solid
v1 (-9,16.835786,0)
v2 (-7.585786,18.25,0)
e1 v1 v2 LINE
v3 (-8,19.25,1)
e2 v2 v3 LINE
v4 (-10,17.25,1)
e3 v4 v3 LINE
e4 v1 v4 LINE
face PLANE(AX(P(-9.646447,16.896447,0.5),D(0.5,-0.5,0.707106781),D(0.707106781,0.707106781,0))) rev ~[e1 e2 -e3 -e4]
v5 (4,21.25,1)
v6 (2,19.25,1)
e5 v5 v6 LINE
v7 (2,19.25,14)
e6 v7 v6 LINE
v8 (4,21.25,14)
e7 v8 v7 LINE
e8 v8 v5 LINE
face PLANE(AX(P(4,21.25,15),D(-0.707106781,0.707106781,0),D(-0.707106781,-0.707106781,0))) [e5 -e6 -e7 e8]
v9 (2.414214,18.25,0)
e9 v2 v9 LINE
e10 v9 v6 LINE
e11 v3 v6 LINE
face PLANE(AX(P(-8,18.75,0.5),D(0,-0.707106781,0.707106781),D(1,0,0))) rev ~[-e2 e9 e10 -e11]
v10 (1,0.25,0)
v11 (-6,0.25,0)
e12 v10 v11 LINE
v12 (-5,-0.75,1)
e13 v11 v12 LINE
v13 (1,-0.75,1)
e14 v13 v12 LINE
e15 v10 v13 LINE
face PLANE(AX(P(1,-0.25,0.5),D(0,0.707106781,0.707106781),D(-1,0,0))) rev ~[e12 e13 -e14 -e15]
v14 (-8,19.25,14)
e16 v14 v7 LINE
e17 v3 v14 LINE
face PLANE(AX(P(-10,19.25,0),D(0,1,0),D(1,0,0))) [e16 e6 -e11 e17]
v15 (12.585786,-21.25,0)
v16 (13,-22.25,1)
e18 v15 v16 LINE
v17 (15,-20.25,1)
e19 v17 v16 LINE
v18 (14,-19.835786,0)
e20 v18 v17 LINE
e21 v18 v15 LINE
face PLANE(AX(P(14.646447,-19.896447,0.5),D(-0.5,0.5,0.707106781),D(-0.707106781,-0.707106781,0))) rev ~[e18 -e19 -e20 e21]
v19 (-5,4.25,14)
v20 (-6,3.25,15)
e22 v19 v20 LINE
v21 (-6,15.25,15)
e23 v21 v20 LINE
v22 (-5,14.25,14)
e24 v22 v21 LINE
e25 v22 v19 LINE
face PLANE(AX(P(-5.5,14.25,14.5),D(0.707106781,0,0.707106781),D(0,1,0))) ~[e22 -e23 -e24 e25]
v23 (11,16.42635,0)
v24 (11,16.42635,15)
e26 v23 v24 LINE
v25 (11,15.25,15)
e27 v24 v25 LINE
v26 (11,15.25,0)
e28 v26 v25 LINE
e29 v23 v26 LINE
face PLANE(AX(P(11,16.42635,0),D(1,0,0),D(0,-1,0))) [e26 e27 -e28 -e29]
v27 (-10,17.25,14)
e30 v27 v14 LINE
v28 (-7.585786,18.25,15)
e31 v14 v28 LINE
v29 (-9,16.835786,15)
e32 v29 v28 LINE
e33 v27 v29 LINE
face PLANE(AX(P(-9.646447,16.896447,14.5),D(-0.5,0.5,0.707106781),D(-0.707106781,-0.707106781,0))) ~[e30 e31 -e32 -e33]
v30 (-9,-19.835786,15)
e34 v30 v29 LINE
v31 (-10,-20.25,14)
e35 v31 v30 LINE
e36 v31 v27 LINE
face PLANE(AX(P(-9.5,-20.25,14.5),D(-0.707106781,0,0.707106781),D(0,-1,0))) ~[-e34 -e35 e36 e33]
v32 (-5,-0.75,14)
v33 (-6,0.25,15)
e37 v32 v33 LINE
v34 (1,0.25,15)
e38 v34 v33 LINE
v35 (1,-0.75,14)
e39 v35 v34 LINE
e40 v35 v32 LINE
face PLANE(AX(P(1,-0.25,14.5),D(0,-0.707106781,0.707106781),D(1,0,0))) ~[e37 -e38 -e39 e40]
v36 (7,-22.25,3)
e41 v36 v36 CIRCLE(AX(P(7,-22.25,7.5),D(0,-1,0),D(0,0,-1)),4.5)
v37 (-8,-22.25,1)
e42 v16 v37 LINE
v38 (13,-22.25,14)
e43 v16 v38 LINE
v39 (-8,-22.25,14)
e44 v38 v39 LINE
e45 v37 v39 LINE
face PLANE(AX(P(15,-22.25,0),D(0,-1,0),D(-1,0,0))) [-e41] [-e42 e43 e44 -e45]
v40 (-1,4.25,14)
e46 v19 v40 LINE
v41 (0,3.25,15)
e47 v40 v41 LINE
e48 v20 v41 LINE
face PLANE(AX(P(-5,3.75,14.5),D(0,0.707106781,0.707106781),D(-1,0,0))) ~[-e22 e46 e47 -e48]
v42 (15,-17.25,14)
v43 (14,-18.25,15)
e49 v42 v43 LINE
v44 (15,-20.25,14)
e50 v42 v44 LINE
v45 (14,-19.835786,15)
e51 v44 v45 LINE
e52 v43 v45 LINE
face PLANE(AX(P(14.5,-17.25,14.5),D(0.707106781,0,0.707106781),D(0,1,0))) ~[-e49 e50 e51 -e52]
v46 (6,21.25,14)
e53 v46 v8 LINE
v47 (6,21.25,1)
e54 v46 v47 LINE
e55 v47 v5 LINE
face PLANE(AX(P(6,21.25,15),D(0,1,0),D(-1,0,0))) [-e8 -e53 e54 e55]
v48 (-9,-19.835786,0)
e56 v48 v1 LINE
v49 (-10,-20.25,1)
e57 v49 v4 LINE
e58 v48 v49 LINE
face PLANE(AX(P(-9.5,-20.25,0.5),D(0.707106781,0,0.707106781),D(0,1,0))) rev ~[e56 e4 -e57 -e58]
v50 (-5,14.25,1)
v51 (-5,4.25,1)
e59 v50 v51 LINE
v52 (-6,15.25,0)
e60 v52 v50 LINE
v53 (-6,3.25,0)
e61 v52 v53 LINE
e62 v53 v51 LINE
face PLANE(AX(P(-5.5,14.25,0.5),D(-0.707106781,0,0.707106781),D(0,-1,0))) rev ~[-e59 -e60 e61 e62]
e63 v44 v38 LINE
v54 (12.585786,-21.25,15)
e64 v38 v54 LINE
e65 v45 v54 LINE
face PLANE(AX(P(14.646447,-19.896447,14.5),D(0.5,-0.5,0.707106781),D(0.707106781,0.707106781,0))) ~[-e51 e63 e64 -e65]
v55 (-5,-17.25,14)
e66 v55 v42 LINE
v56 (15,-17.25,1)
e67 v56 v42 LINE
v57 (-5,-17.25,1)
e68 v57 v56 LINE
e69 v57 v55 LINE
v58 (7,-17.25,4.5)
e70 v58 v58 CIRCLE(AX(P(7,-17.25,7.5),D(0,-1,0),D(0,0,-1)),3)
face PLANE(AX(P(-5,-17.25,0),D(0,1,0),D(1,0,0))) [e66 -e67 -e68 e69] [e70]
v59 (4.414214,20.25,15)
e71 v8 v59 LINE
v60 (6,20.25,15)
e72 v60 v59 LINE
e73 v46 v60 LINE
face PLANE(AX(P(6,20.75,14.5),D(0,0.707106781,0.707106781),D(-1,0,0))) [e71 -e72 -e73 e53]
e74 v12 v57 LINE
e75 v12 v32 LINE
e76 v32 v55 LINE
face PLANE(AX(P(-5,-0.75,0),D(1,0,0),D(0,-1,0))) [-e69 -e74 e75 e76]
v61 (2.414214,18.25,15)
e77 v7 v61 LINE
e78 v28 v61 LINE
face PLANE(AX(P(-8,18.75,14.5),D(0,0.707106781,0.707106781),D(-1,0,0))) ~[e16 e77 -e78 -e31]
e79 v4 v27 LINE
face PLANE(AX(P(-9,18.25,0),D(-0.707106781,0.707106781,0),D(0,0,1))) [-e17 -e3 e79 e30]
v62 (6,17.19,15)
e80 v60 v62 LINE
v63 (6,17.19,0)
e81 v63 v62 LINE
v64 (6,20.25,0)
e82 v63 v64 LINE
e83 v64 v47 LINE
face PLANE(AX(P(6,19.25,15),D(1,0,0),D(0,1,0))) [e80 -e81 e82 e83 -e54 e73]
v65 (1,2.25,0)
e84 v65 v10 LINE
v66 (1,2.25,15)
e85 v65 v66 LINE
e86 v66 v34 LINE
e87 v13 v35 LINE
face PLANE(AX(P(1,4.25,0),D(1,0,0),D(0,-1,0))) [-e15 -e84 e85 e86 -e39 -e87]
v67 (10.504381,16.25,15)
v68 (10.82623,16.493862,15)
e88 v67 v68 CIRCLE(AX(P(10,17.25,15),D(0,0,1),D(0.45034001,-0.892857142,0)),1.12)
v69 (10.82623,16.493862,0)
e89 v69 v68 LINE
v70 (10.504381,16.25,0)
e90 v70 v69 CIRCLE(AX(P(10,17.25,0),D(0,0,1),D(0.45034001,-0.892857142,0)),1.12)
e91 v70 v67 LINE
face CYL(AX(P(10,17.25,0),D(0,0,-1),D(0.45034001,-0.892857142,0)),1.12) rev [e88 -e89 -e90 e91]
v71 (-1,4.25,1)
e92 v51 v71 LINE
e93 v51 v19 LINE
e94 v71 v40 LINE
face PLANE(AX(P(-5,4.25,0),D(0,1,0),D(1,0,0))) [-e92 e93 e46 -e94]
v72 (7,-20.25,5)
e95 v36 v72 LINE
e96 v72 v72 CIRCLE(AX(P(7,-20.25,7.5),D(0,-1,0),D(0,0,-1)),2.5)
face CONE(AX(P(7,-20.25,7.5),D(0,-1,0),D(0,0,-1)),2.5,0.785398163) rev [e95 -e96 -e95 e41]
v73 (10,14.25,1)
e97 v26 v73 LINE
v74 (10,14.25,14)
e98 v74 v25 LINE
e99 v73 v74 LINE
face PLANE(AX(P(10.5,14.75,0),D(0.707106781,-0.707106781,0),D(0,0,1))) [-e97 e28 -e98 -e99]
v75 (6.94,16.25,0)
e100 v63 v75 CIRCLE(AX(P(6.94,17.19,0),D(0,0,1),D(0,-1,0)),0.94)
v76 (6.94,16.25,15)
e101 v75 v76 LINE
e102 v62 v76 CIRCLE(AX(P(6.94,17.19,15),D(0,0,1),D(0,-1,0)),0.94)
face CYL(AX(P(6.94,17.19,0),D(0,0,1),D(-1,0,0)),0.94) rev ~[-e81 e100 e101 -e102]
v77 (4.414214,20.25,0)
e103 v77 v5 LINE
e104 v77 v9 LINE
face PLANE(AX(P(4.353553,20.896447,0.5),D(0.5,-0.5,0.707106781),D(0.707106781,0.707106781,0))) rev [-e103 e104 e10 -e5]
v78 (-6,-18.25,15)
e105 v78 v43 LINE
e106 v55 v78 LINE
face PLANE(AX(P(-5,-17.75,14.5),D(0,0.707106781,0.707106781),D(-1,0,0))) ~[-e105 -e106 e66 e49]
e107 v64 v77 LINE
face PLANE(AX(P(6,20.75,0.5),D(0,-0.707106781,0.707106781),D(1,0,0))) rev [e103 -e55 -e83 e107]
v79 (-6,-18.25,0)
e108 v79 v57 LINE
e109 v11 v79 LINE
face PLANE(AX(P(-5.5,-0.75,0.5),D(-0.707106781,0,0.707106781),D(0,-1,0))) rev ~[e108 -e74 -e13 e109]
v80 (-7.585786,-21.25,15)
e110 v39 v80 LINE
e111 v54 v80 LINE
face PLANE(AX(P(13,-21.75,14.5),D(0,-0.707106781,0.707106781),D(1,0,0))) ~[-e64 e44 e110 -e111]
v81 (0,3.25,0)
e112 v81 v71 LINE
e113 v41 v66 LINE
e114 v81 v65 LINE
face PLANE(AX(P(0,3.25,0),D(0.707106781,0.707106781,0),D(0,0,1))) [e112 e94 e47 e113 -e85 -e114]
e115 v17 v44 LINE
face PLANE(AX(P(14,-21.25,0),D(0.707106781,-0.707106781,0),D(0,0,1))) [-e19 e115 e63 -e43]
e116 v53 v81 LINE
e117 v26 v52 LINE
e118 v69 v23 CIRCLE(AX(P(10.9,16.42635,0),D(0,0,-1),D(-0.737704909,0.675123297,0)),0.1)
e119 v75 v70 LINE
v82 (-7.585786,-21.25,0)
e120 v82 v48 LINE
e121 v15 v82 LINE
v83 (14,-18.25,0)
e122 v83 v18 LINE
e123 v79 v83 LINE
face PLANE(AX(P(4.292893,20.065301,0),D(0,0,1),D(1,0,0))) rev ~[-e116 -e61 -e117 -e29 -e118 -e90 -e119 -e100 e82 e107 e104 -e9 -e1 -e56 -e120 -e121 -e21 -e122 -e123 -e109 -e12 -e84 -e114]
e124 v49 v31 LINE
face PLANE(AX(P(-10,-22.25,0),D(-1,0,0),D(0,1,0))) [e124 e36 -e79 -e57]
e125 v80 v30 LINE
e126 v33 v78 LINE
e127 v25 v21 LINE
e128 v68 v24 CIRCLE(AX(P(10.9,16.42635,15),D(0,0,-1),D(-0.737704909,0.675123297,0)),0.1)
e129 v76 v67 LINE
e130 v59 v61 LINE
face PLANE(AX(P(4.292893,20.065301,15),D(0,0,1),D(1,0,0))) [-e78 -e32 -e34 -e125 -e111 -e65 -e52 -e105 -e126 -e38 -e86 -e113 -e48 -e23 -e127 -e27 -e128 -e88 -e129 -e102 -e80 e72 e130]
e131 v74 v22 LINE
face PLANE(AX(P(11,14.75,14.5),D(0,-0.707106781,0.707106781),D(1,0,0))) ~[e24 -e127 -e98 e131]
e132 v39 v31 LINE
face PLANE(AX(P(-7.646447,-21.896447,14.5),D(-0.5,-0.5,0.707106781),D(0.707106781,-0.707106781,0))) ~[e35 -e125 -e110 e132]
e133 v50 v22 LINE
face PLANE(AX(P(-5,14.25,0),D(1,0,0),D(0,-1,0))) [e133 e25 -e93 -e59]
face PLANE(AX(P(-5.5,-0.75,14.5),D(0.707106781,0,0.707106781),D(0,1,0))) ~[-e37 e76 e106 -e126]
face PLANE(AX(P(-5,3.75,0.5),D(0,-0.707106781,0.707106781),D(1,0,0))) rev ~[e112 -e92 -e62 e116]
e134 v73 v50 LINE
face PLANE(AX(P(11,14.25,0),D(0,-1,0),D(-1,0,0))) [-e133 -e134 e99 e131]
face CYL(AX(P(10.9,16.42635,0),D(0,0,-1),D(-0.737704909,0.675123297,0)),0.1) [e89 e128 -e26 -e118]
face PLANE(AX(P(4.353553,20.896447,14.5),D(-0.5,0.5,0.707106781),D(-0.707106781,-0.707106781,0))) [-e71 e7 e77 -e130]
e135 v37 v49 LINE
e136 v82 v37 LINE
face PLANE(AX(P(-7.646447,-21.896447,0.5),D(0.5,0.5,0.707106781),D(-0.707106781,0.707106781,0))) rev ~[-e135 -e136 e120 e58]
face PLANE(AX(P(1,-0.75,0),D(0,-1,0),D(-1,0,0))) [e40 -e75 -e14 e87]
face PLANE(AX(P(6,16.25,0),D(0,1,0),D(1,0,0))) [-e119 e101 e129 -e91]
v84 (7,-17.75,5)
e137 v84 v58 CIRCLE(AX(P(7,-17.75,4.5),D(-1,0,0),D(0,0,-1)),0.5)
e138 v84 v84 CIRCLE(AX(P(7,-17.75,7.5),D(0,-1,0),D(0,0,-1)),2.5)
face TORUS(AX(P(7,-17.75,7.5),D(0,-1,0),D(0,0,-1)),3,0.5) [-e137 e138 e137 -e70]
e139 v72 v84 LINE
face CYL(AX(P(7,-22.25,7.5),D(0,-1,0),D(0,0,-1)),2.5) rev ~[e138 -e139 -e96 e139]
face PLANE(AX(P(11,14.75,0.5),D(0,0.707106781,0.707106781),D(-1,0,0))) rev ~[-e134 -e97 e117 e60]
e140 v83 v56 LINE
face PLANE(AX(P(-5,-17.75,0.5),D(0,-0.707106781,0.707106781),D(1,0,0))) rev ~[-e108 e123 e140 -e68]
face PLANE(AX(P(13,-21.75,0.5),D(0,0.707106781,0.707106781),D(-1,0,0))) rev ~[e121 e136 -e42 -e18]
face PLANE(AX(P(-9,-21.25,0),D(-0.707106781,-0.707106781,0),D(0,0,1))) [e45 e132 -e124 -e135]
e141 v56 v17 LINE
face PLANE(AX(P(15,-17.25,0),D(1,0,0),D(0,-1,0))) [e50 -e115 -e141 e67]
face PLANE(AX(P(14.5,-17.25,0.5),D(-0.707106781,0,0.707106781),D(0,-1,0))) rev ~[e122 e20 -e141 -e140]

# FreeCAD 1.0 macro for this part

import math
import FreeCAD as App
import Part
import Sketcher
from FreeCAD import Vector


def edges_at(feature, points):
    """Names of the edges that pass closest to the given points."""
    edges = feature.Shape.Edges
    near = lambda p: min(range(len(edges)), key=lambda i: edges[i].distToShape(Part.Vertex(*p))[0])
    return sorted({f"Edge{near(p) + 1}" for p in points})


def add_polygon(sketch, points):
    """Adds a closed chain of lines whose ends are joined by coincident constraints."""
    first, n = sketch.GeometryCount, len(points)
    for a, b in zip(points, points[1:] + points[:1]):
        sketch.addGeometry(Part.LineSegment(App.Vector(*a, 0), App.Vector(*b, 0)), False)
    for i in range(n):
        sketch.addConstraint(Sketcher.Constraint("Coincident", first + i, 2, first + (i + 1) % n, 1))

doc = App.newDocument("Part")
params = doc.addObject("Spreadsheet::Sheet", "Params")
for row, (alias, value) in enumerate([
    ("sketch1_radius", "0.1 mm"),
    ("sketch1_width", "16 mm"),
    ("sketch1_width2", "25 mm"),
    ("sketch1_width3", "20 mm"),
    ("sketch1_width4", "6 mm"),
    ("pad1_length", "15 mm"),
    ("sketch2_diameter", "5 mm"),
    ("pocket1_length", "15 mm"),
    ("chamfer_size", "2 mm"),
    ("fillet_radius", "0.5 mm"),
    ("fillet2_radius", "0.94 mm"),
    ("sketch3_width", "2 mm"),
    ("sketch3_width2", "4 mm"),
    ("pad2_length", "15 mm"),
    ("chamfer2_size", "2 mm"),
    ("chamfer3_size", "1 mm"),
], start=1):
    params.set(f"A{row}", alias)
    params.set(f"B{row}", "=" + value)
    params.setAlias(f"B{row}", alias)

body = doc.addObject("PartDesign::Body", "Body")

# Sketch on XY plane
sketch1 = body.newObject("Sketcher::SketchObject", "Sketch")
sketch1.AttachmentSupport = (doc.getObject("XY_Plane"), [""])
sketch1.MapMode = "FlatFace"
sketch1.addGeometry(Part.LineSegment(Vector(-5, 14.25, 0), Vector(11, 14.25, 0)), False)
sketch1.addGeometry(Part.LineSegment(Vector(11, 14.25, 0), Vector(11, 16.43, 0)), False)
sketch1.addGeometry(Part.ArcOfCircle(Part.Circle(Vector(10.9, 16.43, 0), Vector(0, 0, 1), 0.1), math.radians(0), math.radians(138)), False)
sketch1.addGeometry(Part.ArcOfCircle(Part.Circle(Vector(10, 17.25, 0), Vector(0, 0, 1), 1.12), math.radians(-63), math.radians(-42)), False)
sketch1.addGeometry(Part.LineSegment(Vector(10.5, 16.25, 0), Vector(6, 16.25, 0)), False)
sketch1.addGeometry(Part.LineSegment(Vector(6, 16.25, 0), Vector(6, 19.25, 0)), False)
sketch1.addGeometry(Part.LineSegment(Vector(6, 19.25, 0), Vector(-10, 19.25, 0)), False)
sketch1.addGeometry(Part.LineSegment(Vector(-10, 19.25, 0), Vector(-10, -22.25, 0)), False)
sketch1.addGeometry(Part.LineSegment(Vector(-10, -22.25, 0), Vector(15, -22.25, 0)), False)
sketch1.addGeometry(Part.LineSegment(Vector(15, -22.25, 0), Vector(15, -17.25, 0)), False)
sketch1.addGeometry(Part.LineSegment(Vector(15, -17.25, 0), Vector(-5, -17.25, 0)), False)
sketch1.addGeometry(Part.LineSegment(Vector(-5, -17.25, 0), Vector(-5, -0.75, 0)), False)
sketch1.addGeometry(Part.LineSegment(Vector(-5, -0.75, 0), Vector(1, -0.75, 0)), False)
sketch1.addGeometry(Part.LineSegment(Vector(1, -0.75, 0), Vector(1, 4.25, 0)), False)
sketch1.addGeometry(Part.LineSegment(Vector(1, 4.25, 0), Vector(-5, 4.25, 0)), False)
sketch1.addGeometry(Part.LineSegment(Vector(-5, 4.25, 0), Vector(-5, 14.25, 0)), False)
sketch1.addConstraint(Sketcher.Constraint("Coincident", 0, 2, 1, 1))
sketch1.addConstraint(Sketcher.Constraint("Tangent", 1, 2, 2, 1))
sketch1.addConstraint(Sketcher.Constraint("Tangent", 2, 2, 3, 2))
sketch1.addConstraint(Sketcher.Constraint("Coincident", 3, 1, 4, 1))
sketch1.addConstraint(Sketcher.Constraint("Coincident", 4, 2, 5, 1))
sketch1.addConstraint(Sketcher.Constraint("Coincident", 5, 2, 6, 1))
sketch1.addConstraint(Sketcher.Constraint("Coincident", 6, 2, 7, 1))
sketch1.addConstraint(Sketcher.Constraint("Coincident", 7, 2, 8, 1))
sketch1.addConstraint(Sketcher.Constraint("Coincident", 8, 2, 9, 1))
sketch1.addConstraint(Sketcher.Constraint("Coincident", 9, 2, 10, 1))
sketch1.addConstraint(Sketcher.Constraint("Coincident", 10, 2, 11, 1))
sketch1.addConstraint(Sketcher.Constraint("Coincident", 11, 2, 12, 1))
sketch1.addConstraint(Sketcher.Constraint("Coincident", 12, 2, 13, 1))
sketch1.addConstraint(Sketcher.Constraint("Coincident", 13, 2, 14, 1))
sketch1.addConstraint(Sketcher.Constraint("Coincident", 14, 2, 15, 1))
sketch1.addConstraint(Sketcher.Constraint("Coincident", 15, 2, 0, 1))
sketch1.addConstraint(Sketcher.Constraint("Horizontal", 0))
sketch1.addConstraint(Sketcher.Constraint("Vertical", 1))
sketch1.addConstraint(Sketcher.Constraint("Horizontal", 4))
sketch1.addConstraint(Sketcher.Constraint("Vertical", 5))
sketch1.addConstraint(Sketcher.Constraint("Horizontal", 6))
sketch1.addConstraint(Sketcher.Constraint("Vertical", 7))
sketch1.addConstraint(Sketcher.Constraint("Horizontal", 8))
sketch1.addConstraint(Sketcher.Constraint("Vertical", 9))
sketch1.addConstraint(Sketcher.Constraint("Horizontal", 10))
sketch1.addConstraint(Sketcher.Constraint("Vertical", 11))
sketch1.addConstraint(Sketcher.Constraint("Horizontal", 12))
sketch1.addConstraint(Sketcher.Constraint("Vertical", 13))
sketch1.addConstraint(Sketcher.Constraint("Horizontal", 14))
sketch1.addConstraint(Sketcher.Constraint("Vertical", 15))
sketch1.addConstraint(Sketcher.Constraint("Vertical", 11, 2, 14, 2))
sketch1.addConstraint(Sketcher.Constraint("Equal", 0, 6))
sketch1.addConstraint(Sketcher.Constraint("Equal", 9, 13))
sketch1.addConstraint(Sketcher.Constraint("Radius", 2, 0.1))
sketch1.addConstraint(Sketcher.Constraint("DistanceX", 0, 1, 0, 2, 16.0))
sketch1.addConstraint(Sketcher.Constraint("DistanceX", 8, 1, 8, 2, 25.0))
sketch1.addConstraint(Sketcher.Constraint("DistanceX", 10, 2, 10, 1, 20.0))
sketch1.addConstraint(Sketcher.Constraint("DistanceX", 12, 1, 12, 2, 6.0))
sketch1.addConstraint(Sketcher.Constraint("DistanceY", 5, 1, 5, 2, 3.0))
sketch1.addConstraint(Sketcher.Constraint("DistanceY", 9, 1, 9, 2, 5.0))
sketch1.addConstraint(Sketcher.Constraint("DistanceY", 15, 1, 15, 2, 10.0))
sketch1.addConstraint(Sketcher.Constraint("Radius", 3, 1.12))
sketch1.addConstraint(Sketcher.Constraint("DistanceY", 7, 2, 7, 1, 41.5))
sketch1.addConstraint(Sketcher.Constraint("DistanceY", 11, 1, 11, 2, 16.5))
sketch1.addConstraint(Sketcher.Constraint("DistanceX", -1, 1, 3, 3, 10.0))
sketch1.addConstraint(Sketcher.Constraint("DistanceX", -1, 1, 0, 2, 11.0))
sketch1.addConstraint(Sketcher.Constraint("DistanceY", 0, 2, 3, 3, 3.0))
sketch1.addConstraint(Sketcher.Constraint("DistanceY", -1, 1, 3, 3, 17.25))
sketch1.setExpression("Constraints[33]", "Params.sketch1_radius")
sketch1.setExpression("Constraints[34]", "Params.sketch1_width")
sketch1.setExpression("Constraints[35]", "Params.sketch1_width2")
sketch1.setExpression("Constraints[36]", "Params.sketch1_width3")
sketch1.setExpression("Constraints[37]", "Params.sketch1_width4")
pad1 = body.newObject("PartDesign::Pad", "Pad")
pad1.Profile = sketch1
pad1.setExpression("Length", "Params.pad1_length")

# Sketch on XZ plane
sketch2 = body.newObject("Sketcher::SketchObject", "Sketch001")
sketch2.AttachmentSupport = (doc.getObject("XZ_Plane"), [""])
sketch2.MapMode = "FlatFace"
sketch2.AttachmentOffset = App.Placement(Vector(0, 0, 22.25), App.Rotation())
sketch2.addGeometry(Part.Circle(Vector(7, 7.5, 0), Vector(0, 0, 1), 2.5), False)
sketch2.addConstraint(Sketcher.Constraint("Diameter", 0, 5.0))
sketch2.addConstraint(Sketcher.Constraint("DistanceX", -1, 1, 0, 3, 7.0))
sketch2.addConstraint(Sketcher.Constraint("DistanceY", -1, 1, 0, 3, 7.5))
sketch2.setExpression("Constraints[0]", "Params.sketch2_diameter")
pocket1 = body.newObject("PartDesign::Pocket", "Pocket")
pocket1.Profile = sketch2
pocket1.setExpression("Length", "Params.pocket1_length")
doc.recompute()

chamfer = body.newObject("PartDesign::Chamfer", "Chamfer")
chamfer.Base = (pocket1, edges_at(pocket1, [(7, -22.25, 10)]))
chamfer.setExpression("Size", "Params.chamfer_size")
doc.recompute()

fillet = body.newObject("PartDesign::Fillet", "Fillet")
fillet.Base = (chamfer, edges_at(chamfer, [(7, -17.25, 10)]))
fillet.setExpression("Radius", "Params.fillet_radius")
doc.recompute()

fillet2 = body.newObject("PartDesign::Fillet", "Fillet001")
fillet2.Base = (fillet, edges_at(fillet, [(6, 16.25, 7.5)]))
fillet2.setExpression("Radius", "Params.fillet2_radius")

# Sketch on XY plane
sketch3 = body.newObject("Sketcher::SketchObject", "Sketch002")
sketch3.AttachmentSupport = (doc.getObject("XY_Plane"), [""])
sketch3.MapMode = "FlatFace"
sketch3.AttachmentOffset = App.Placement(Vector(0, 0, 15), App.Rotation())
add_polygon(sketch3, [(6, 19.2), (6, 21.2), (4, 21.2), (2, 19.2)])  # lines 0-3
sketch3.addConstraint(Sketcher.Constraint("Vertical", 0))
sketch3.addConstraint(Sketcher.Constraint("Horizontal", 1))
sketch3.addConstraint(Sketcher.Constraint("Horizontal", 3))
sketch3.addConstraint(Sketcher.Constraint("Equal", 1, 0))
sketch3.addConstraint(Sketcher.Constraint("DistanceX", 1, 2, 1, 1, 2.0))
sketch3.addConstraint(Sketcher.Constraint("DistanceX", 3, 1, 3, 2, 4.0))
sketch3.addConstraint(Sketcher.Constraint("DistanceX", -1, 1, 0, 2, 6.0))
sketch3.addConstraint(Sketcher.Constraint("DistanceY", -1, 1, 0, 2, 21.25))
sketch3.setExpression("Constraints[8]", "Params.sketch3_width")
sketch3.setExpression("Constraints[9]", "Params.sketch3_width2")
pad2 = body.newObject("PartDesign::Pad", "Pad001")
pad2.Profile = sketch3
pad2.setExpression("Length", "Params.pad2_length")
pad2.Reversed = True
doc.recompute()

chamfer2 = body.newObject("PartDesign::Chamfer", "Chamfer001")
chamfer2.Base = (pad2, edges_at(pad2, [
    (15, -22.25, 7.5),
    (-10, -22.25, 7.5),
    (-10, 19.25, 7.5),
    (1, 4.25, 7.5),
]))
chamfer2.setExpression("Size", "Params.chamfer2_size")
doc.recompute()

chamfer3 = body.newObject("PartDesign::Chamfer", "Chamfer002")
chamfer3.Base = (chamfer2, edges_at(chamfer2, [
    (-5, 9.25, 15),
    (-2, -0.75, 0),
    (3, 14.25, 15),
    (-5, -9, 0),
    (5, -17.25, 0),
    (3, 14.25, 0),
    (-5, 9.25, 0),
    (11, 14.25, 7.5),
    (5, -17.25, 15),
    (-5, -9, 15),
    (-2, -0.75, 15),
    (-3, 19.25, 0),
    (-3, 19.25, 15),
    (5, 21.25, 15),
    (3, 20.25, 15),
    (3, 20.25, 0),
    (5, 21.25, 0),
    (-3, 4.25, 0),
    (-3, 4.25, 15),
    (15, -18.75, 0),
    (2.5, -22.25, 0),
    (-10, -1.5, 0),
    (-9, 18.25, 0),
    (-9, -21.25, 0),
    (14, -21.25, 0),
    (-10, -1.5, 15),
    (2.5, -22.25, 15),
    (15, -18.75, 15),
    (-9, 18.25, 15),
    (-9, -21.25, 15),
    (14, -21.25, 15),
]))
chamfer3.setExpression("Size", "Params.chamfer3_size")

doc.recompute()
